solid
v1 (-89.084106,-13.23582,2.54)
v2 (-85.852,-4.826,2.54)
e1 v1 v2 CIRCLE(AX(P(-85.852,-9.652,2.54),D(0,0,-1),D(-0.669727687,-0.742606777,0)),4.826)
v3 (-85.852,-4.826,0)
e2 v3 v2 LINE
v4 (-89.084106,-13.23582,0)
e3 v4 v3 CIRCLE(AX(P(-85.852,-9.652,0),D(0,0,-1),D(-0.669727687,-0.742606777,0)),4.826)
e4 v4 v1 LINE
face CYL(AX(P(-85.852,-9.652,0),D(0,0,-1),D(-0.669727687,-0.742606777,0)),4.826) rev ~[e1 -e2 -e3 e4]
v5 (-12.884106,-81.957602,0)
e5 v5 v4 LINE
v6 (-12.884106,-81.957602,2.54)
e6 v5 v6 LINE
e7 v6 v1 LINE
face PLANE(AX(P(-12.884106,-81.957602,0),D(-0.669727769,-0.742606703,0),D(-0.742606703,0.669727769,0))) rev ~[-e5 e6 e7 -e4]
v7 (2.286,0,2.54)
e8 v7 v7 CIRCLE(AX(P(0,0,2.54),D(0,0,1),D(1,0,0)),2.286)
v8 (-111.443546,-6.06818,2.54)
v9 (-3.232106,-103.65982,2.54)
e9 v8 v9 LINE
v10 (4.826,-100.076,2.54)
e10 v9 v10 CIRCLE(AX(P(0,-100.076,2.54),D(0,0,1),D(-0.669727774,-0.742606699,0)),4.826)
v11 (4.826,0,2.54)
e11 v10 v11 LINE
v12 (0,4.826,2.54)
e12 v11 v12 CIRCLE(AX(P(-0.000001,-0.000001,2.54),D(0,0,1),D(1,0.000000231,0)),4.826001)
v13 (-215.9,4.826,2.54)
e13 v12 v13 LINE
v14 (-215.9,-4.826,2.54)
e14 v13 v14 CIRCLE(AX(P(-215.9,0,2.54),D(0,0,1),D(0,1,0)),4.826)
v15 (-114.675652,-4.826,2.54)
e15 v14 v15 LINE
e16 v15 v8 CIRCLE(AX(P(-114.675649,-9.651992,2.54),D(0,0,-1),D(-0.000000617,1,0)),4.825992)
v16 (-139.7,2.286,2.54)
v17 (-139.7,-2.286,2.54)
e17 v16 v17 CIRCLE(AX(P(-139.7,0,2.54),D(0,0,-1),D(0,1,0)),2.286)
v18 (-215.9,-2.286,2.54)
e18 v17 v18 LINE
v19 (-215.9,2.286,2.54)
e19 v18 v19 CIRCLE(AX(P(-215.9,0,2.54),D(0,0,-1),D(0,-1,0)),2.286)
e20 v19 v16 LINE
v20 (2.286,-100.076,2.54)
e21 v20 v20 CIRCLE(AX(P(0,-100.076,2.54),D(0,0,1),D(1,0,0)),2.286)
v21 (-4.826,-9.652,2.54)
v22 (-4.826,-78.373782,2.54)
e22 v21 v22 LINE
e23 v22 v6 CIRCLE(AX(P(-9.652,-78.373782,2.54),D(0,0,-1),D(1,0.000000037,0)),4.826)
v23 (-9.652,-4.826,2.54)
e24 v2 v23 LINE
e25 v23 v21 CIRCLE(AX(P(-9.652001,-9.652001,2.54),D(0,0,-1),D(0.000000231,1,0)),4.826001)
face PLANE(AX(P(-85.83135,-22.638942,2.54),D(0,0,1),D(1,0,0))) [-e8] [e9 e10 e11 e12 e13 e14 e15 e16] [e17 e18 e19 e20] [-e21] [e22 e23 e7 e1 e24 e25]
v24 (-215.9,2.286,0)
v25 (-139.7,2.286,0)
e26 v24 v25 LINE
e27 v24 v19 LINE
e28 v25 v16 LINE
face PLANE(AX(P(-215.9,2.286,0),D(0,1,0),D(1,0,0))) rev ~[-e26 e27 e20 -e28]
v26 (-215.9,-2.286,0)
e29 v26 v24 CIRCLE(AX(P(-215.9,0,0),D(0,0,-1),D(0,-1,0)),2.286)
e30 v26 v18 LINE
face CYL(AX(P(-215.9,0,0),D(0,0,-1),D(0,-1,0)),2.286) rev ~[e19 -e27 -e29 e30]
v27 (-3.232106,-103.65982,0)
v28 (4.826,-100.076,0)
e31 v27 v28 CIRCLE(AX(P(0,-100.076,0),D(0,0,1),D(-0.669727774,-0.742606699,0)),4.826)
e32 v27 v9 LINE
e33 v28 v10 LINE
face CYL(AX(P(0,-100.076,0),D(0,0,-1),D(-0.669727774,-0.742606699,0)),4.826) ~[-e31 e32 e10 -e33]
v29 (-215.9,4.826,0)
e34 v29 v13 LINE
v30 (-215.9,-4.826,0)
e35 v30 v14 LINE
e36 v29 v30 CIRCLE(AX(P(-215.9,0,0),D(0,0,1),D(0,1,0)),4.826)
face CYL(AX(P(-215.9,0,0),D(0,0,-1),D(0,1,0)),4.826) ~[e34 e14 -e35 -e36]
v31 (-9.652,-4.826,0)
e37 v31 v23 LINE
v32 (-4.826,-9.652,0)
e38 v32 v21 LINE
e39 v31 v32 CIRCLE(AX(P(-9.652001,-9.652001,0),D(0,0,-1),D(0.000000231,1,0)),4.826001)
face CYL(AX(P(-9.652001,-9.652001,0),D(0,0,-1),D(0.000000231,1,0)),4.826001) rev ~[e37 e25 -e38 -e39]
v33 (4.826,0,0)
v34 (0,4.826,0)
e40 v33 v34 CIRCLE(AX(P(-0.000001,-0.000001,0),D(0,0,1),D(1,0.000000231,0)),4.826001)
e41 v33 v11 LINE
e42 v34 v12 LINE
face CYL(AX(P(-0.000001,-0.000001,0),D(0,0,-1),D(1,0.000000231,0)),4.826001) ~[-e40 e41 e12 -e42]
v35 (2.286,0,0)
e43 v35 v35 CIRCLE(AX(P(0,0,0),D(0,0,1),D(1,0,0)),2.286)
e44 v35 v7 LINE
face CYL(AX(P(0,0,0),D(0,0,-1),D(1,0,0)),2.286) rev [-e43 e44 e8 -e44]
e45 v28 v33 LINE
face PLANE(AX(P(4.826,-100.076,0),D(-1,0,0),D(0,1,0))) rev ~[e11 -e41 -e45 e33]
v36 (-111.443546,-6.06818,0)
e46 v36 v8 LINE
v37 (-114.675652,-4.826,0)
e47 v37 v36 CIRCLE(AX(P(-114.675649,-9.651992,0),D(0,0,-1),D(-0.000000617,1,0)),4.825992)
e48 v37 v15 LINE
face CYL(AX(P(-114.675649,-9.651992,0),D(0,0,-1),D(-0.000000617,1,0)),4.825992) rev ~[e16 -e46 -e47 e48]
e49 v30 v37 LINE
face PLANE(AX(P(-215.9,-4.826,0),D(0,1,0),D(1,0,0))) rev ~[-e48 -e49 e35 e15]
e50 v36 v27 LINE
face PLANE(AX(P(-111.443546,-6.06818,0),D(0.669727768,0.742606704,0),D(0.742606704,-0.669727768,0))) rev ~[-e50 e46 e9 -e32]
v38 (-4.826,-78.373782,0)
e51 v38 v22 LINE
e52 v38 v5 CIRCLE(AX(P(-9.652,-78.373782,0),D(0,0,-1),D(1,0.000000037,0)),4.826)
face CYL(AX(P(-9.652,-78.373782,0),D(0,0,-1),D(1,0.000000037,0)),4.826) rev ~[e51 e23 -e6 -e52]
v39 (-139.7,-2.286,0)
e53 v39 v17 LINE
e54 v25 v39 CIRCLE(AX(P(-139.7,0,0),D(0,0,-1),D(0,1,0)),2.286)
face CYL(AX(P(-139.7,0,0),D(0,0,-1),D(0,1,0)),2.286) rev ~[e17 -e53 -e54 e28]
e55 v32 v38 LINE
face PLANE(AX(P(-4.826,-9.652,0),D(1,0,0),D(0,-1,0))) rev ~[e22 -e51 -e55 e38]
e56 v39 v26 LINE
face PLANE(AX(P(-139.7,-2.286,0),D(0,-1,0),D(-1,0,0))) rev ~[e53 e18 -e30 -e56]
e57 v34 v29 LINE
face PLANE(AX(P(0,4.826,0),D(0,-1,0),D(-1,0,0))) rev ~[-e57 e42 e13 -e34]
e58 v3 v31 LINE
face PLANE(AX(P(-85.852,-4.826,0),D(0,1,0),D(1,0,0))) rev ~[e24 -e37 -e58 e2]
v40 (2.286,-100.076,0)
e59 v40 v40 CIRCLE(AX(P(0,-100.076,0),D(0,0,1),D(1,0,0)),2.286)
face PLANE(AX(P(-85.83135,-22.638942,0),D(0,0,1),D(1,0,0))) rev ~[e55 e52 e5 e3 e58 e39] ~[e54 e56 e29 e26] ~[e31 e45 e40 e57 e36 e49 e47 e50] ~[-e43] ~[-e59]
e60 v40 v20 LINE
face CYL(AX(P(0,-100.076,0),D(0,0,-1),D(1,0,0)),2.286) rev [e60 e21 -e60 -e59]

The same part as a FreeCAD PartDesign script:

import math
import FreeCAD as App
import Part
import Sketcher
from FreeCAD import Vector
Q = App.Units.Quantity

doc = App.newDocument("Part")
body = doc.addObject("PartDesign::Body", "Body")

# Sketch on XY plane
sketch1 = doc.addObject("Sketcher::SketchObject", "Sketch")
body.addObject(sketch1)
sketch1.AttachmentSupport = (doc.XY_Plane, [""])
sketch1.MapMode = "FlatFace"
sketch1.addGeometry([
    Part.LineSegment(Vector(0, 4.8, 0), Vector(-215.9, 4.8, 0)),  # 0
    Part.ArcOfCircle(Part.Circle(Vector(-215.9, 0, 0), Vector(0, 0, 1), 4.8), math.radians(90), math.radians(270)),  # 1
    Part.LineSegment(Vector(-215.9, -4.8, 0), Vector(-114.7, -4.8, 0)),  # 2
    Part.ArcOfCircle(Part.Circle(Vector(-114.7, -9.7, 0), Vector(0, 0, 1), 4.8), math.radians(48), math.radians(90)),  # 3
    Part.LineSegment(Vector(-111.4, -6.1, 0), Vector(-3.2, -103.7, 0)),  # 4
    Part.ArcOfCircle(Part.Circle(Vector(0, -100.1, 0), Vector(0, 0, 1), 4.8), math.radians(-132), math.radians(0)),  # 5
    Part.LineSegment(Vector(4.8, -100.1, 0), Vector(4.8, 0, 0)),  # 6
    Part.ArcOfCircle(Part.Circle(Vector(0, 0, 0), Vector(0, 0, 1), 4.8), math.radians(0), math.radians(90)),  # 7
    Part.Circle(Vector(0, -100.1, 0), Vector(0, 0, 1), 2.3),  # 8
    Part.LineSegment(Vector(-139.7, -2.3, 0), Vector(-215.9, -2.3, 0)),  # 9
    Part.ArcOfCircle(Part.Circle(Vector(-215.9, 0, 0), Vector(0, 0, 1), 2.3), math.radians(90), math.radians(270)),  # 10
    Part.LineSegment(Vector(-215.9, 2.3, 0), Vector(-139.7, 2.3, 0)),  # 11
    Part.ArcOfCircle(Part.Circle(Vector(-139.7, 0, 0), Vector(0, 0, 1), 2.3), math.radians(-90), math.radians(90)),  # 12
    Part.ArcOfCircle(Part.Circle(Vector(-9.7, -78.4, 0), Vector(0, 0, 1), 4.8), math.radians(-132), math.radians(0)),  # 13
    Part.LineSegment(Vector(-12.9, -82, 0), Vector(-89.1, -13.2, 0)),  # 14
    Part.ArcOfCircle(Part.Circle(Vector(-85.9, -9.7, 0), Vector(0, 0, 1), 4.8), math.radians(90), math.radians(228)),  # 15
    Part.LineSegment(Vector(-85.9, -4.8, 0), Vector(-9.7, -4.8, 0)),  # 16
    Part.ArcOfCircle(Part.Circle(Vector(-9.7, -9.7, 0), Vector(0, 0, 1), 4.8), math.radians(0), math.radians(90)),  # 17
    Part.LineSegment(Vector(-4.8, -9.7, 0), Vector(-4.8, -78.4, 0)),  # 18
    Part.Circle(Vector(0, 0, 0), Vector(0, 0, 1), 2.3),  # 19
], False)
sketch1.addConstraint([
    Sketcher.Constraint("Tangent", 0, 2, 1, 1),
    Sketcher.Constraint("Tangent", 1, 2, 2, 1),
    Sketcher.Constraint("Tangent", 2, 2, 3, 2),
    Sketcher.Constraint("Tangent", 3, 1, 4, 1),
    Sketcher.Constraint("Tangent", 4, 2, 5, 1),
    Sketcher.Constraint("Tangent", 5, 2, 6, 1),
    Sketcher.Constraint("Tangent", 6, 2, 7, 1),
    Sketcher.Constraint("Tangent", 7, 2, 0, 1),
    Sketcher.Constraint("Tangent", 9, 2, 10, 2),
    Sketcher.Constraint("Tangent", 10, 1, 11, 1),
    Sketcher.Constraint("Tangent", 11, 2, 12, 2),
    Sketcher.Constraint("Tangent", 12, 1, 9, 1),
    Sketcher.Constraint("Tangent", 13, 1, 14, 1),
    Sketcher.Constraint("Tangent", 14, 2, 15, 2),
    Sketcher.Constraint("Tangent", 15, 1, 16, 1),
    Sketcher.Constraint("Tangent", 16, 2, 17, 2),
    Sketcher.Constraint("Tangent", 17, 1, 18, 1),
    Sketcher.Constraint("Tangent", 18, 2, 13, 2),
    Sketcher.Constraint("Horizontal", 0),
    Sketcher.Constraint("Horizontal", 2),
    Sketcher.Constraint("Vertical", 6),
    Sketcher.Constraint("Horizontal", 9),
    Sketcher.Constraint("Horizontal", 11),
    Sketcher.Constraint("Horizontal", 16),
    Sketcher.Constraint("Vertical", 18),
    Sketcher.Constraint("Coincident", 7, 3, -1, 1),
    Sketcher.Constraint("Coincident", 19, 3, -1, 1),
    Sketcher.Constraint("Coincident", 8, 3, 5, 3),
    Sketcher.Constraint("Coincident", 10, 3, 1, 3),
    Sketcher.Constraint("Equal", 1, 5),
    Sketcher.Constraint("Equal", 5, 7),
    Sketcher.Constraint("Equal", 8, 10),
    Sketcher.Constraint("Equal", 7, 13),
    Sketcher.Constraint("Equal", 13, 15),
    Sketcher.Constraint("Equal", 15, 17),
    Sketcher.Constraint("Equal", 12, 19),
    Sketcher.Constraint("Parallel", 4, 14),
    Sketcher.Constraint("Horizontal", 2, 2, 15, 1),
    Sketcher.Constraint("Equal", 11, 16),
    Sketcher.Constraint("Diameter", 8, Q("0.18 in")),
    Sketcher.Constraint("DistanceX", 9, 2, 9, 1, Q("3 in")),
    Sketcher.Constraint("Radius", 1, Q("0.19 in")),
    Sketcher.Constraint("DistanceX", 0, 2, 0, 1, Q("8.5 in")),
    Sketcher.Constraint("DistanceY", 6, 1, 6, 2, Q("3.94 in")),
    Sketcher.Constraint("DistanceX", 13, 3, -1, 1, Q("0.38 in")),
    Sketcher.Constraint("Radius", 3, Q("4.825992 mm")),
    Sketcher.Constraint("DistanceX", 2, 1, 2, 2, Q("101.224348 mm")),
])
pad1 = doc.addObject("PartDesign::Pad", "Pad")
body.addObject(pad1)
pad1.Profile = sketch1
pad1.Length = Q("0.1 in")

doc.recompute()
